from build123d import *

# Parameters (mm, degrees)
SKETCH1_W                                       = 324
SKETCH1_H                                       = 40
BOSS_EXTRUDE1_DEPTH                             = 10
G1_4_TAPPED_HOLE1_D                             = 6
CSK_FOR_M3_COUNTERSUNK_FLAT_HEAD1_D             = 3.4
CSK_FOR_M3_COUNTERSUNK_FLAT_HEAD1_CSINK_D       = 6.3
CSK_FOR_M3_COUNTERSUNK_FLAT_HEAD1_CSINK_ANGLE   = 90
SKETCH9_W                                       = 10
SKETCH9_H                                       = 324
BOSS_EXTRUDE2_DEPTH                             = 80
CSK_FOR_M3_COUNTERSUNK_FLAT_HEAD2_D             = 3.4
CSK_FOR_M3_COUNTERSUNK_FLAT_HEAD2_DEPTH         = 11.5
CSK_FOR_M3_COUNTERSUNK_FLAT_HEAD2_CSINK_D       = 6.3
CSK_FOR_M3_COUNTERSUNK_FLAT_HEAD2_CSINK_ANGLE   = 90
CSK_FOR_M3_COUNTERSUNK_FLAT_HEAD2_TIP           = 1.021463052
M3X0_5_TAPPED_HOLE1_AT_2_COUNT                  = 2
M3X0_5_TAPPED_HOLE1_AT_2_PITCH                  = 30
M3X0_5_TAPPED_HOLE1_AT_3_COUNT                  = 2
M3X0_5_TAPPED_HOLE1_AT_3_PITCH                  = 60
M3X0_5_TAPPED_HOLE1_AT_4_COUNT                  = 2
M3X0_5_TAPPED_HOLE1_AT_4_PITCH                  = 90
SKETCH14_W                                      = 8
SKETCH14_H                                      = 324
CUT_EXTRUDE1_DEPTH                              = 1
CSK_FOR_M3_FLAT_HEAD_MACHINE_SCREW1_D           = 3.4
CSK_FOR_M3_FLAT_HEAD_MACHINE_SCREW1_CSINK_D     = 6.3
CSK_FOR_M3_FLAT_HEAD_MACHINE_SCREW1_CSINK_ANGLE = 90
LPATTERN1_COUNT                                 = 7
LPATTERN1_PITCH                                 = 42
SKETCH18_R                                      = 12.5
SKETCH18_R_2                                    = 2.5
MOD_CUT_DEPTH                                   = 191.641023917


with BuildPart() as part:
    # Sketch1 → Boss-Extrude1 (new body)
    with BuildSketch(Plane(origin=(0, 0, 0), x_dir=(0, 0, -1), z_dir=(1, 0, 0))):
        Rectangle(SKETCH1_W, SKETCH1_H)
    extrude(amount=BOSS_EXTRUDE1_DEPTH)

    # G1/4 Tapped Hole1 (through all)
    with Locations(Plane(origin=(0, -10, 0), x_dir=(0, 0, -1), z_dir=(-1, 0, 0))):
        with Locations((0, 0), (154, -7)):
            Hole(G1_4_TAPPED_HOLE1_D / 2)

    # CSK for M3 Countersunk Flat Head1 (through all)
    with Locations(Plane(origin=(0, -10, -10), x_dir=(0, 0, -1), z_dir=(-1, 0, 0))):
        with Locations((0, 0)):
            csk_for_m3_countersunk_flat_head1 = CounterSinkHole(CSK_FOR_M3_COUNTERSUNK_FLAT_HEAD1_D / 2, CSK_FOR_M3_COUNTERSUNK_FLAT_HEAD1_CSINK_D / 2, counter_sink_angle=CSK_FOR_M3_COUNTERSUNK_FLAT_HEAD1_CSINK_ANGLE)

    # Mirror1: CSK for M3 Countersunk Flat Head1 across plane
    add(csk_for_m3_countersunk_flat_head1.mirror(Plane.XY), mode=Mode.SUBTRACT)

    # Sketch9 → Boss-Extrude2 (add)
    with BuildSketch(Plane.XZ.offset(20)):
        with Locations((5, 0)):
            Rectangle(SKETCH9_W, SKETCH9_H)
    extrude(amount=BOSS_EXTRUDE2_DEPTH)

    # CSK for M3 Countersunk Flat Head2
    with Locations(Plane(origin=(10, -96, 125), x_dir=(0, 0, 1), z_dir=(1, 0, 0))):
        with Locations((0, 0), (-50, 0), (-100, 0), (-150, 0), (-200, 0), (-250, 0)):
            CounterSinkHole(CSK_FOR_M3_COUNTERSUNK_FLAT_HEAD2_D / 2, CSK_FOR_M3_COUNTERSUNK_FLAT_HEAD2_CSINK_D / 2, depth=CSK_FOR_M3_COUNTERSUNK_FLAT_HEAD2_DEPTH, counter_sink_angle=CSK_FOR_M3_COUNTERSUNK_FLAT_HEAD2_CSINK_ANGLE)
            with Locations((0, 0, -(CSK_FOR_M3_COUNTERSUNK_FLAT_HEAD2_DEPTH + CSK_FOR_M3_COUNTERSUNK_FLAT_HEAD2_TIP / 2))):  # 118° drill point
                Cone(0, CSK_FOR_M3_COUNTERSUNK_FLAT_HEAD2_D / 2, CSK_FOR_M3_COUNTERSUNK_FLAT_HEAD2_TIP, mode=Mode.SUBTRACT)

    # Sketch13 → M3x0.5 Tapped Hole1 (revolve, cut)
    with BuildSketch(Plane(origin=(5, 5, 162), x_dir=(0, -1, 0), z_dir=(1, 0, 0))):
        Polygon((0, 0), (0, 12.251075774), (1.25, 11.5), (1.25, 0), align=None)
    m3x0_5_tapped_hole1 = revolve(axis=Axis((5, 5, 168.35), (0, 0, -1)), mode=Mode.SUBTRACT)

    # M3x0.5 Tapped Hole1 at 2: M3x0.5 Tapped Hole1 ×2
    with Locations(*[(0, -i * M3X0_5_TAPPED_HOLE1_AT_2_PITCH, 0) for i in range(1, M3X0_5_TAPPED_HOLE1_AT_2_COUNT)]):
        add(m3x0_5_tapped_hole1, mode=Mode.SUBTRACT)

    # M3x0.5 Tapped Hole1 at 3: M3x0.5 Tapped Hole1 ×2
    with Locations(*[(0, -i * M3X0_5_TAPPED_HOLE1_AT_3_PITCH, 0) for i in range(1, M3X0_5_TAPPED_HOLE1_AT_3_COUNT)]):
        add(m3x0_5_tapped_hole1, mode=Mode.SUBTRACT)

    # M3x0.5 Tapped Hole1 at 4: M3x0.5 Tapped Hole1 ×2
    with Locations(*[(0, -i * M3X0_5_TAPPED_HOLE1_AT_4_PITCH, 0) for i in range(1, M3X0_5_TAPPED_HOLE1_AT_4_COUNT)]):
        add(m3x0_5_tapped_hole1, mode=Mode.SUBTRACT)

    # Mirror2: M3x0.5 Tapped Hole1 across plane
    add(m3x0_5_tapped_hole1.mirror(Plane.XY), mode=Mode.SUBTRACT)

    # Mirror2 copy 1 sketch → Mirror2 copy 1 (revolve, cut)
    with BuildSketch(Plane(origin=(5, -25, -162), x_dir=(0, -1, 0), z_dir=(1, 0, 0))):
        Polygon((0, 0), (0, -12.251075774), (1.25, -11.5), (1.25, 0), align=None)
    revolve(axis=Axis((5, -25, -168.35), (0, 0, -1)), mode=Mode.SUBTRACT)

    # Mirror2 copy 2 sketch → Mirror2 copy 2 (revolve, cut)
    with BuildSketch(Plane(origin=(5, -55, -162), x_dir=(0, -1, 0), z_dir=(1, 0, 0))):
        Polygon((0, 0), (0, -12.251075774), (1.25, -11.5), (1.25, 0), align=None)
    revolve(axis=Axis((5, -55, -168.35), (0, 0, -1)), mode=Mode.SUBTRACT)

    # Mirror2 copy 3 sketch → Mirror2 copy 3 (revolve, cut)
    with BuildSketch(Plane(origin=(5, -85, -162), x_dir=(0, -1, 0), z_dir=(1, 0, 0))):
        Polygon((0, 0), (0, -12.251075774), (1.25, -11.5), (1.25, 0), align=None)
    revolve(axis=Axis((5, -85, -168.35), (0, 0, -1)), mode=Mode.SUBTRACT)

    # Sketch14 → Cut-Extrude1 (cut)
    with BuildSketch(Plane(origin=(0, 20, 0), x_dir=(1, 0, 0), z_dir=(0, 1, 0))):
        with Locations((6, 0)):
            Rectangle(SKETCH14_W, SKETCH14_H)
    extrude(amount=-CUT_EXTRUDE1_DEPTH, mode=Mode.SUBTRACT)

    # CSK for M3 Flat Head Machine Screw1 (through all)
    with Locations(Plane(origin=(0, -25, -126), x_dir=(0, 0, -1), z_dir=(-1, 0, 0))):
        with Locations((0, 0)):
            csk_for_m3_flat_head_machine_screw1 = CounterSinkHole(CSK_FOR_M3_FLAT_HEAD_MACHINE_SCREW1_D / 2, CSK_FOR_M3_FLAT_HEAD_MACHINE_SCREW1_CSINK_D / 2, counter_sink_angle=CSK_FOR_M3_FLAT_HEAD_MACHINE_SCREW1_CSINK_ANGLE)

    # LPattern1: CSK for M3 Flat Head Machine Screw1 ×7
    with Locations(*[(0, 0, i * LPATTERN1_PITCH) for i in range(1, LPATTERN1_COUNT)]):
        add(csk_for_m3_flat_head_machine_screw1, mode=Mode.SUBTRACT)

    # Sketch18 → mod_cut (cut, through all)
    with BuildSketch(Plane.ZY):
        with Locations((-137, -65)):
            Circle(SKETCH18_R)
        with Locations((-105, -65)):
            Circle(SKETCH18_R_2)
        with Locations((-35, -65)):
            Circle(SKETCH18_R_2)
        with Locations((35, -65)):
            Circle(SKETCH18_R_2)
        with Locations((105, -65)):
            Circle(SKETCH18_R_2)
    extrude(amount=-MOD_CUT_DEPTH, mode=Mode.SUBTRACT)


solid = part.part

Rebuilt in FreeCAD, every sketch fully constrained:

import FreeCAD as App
import Part
import Sketcher
from FreeCAD import Vector
Q = App.Units.Quantity

doc = App.newDocument("Part")
body = doc.addObject("PartDesign::Body", "Body")

# Sketch on YZ plane
sketch1 = body.newObject("Sketcher::SketchObject", "Sketch")
sketch1.AttachmentSupport = (doc.getObject("YZ_Plane"), [""])
sketch1.MapMode = "FlatFace"
sketch1.addGeometry(Part.LineSegment(Vector(20, 162, 0), Vector(-20, 162, 0)), False)
sketch1.addGeometry(Part.LineSegment(Vector(-20, 162, 0), Vector(-20, -162, 0)), False)
sketch1.addGeometry(Part.LineSegment(Vector(-20, -162, 0), Vector(20, -162, 0)), False)
sketch1.addGeometry(Part.LineSegment(Vector(20, -162, 0), Vector(20, 162, 0)), False)
sketch1.addConstraint(Sketcher.Constraint("Coincident", 0, 2, 1, 1))
sketch1.addConstraint(Sketcher.Constraint("Coincident", 1, 2, 2, 1))
sketch1.addConstraint(Sketcher.Constraint("Coincident", 2, 2, 3, 1))
sketch1.addConstraint(Sketcher.Constraint("Coincident", 3, 2, 0, 1))
sketch1.addConstraint(Sketcher.Constraint("Horizontal", 0))
sketch1.addConstraint(Sketcher.Constraint("Vertical", 1))
sketch1.addConstraint(Sketcher.Constraint("Horizontal", 2))
sketch1.addConstraint(Sketcher.Constraint("Vertical", 3))
sketch1.addConstraint(Sketcher.Constraint("Symmetric", 0, 2, 2, 2, -1, 1))
sketch1.addConstraint(Sketcher.Constraint("DistanceX", 0, 2, 0, 1, 40.0))
sketch1.addConstraint(Sketcher.Constraint("DistanceY", 1, 2, 1, 1, 324.0))
pad1 = body.newObject("PartDesign::Pad", "Pad")
pad1.Profile = sketch1
pad1.Length = 10

# Sketch on YZ plane
sketch2 = body.newObject("Sketcher::SketchObject", "Sketch001")
sketch2.AttachmentSupport = (doc.getObject("YZ_Plane"), [""])
sketch2.MapMode = "FlatFace"
sketch2.addGeometry(Part.Circle(Vector(-10, 0, 0), Vector(0, 0, 1), 3), False)
sketch2.addGeometry(Part.Circle(Vector(-3, -154, 0), Vector(0, 0, 1), 3), False)
sketch2.addConstraint(Sketcher.Constraint("Equal", 0, 1))
sketch2.addConstraint(Sketcher.Constraint("PointOnObject", 0, 3, -1))
sketch2.addConstraint(Sketcher.Constraint("Diameter", 0, 6.0))
sketch2.addConstraint(Sketcher.Constraint("DistanceX", 0, 3, -1, 1, 10.0))
sketch2.addConstraint(Sketcher.Constraint("DistanceX", 1, 3, -1, 1, 3.0))
sketch2.addConstraint(Sketcher.Constraint("DistanceY", 1, 3, -1, 1, 154.0))
doc.recompute()
hole = body.newObject("PartDesign::Hole", "Hole")
hole.Profile = sketch2
hole.ThreadType = "None"
hole.Diameter = 6
hole.DepthType = "ThroughAll"
hole.Reversed = True

# Sketch on YZ plane
sketch3 = body.newObject("Sketcher::SketchObject", "Sketch002")
sketch3.AttachmentSupport = (doc.getObject("YZ_Plane"), [""])
sketch3.MapMode = "FlatFace"
sketch3.addGeometry(Part.Circle(Vector(-10, -10, 0), Vector(0, 0, 1), 1.7), False)
sketch3.addConstraint(Sketcher.Constraint("Diameter", 0, 3.4))
sketch3.addConstraint(Sketcher.Constraint("DistanceX", 0, 3, -1, 1, 10.0))
sketch3.addConstraint(Sketcher.Constraint("DistanceY", 0, 3, -1, 1, 10.0))
doc.recompute()
hole2 = body.newObject("PartDesign::Hole", "Hole001")
hole2.Profile = sketch3
hole2.ThreadType = "None"
hole2.Diameter = 3.4
hole2.DepthType = "ThroughAll"
hole2.HoleCutType = "Countersink"
hole2.HoleCutDiameter = 6.3
hole2.HoleCutCountersinkAngle = 90
hole2.Reversed = True
doc.recompute()

mirrored = body.newObject("PartDesign::Mirrored", "Mirrored")
mirrored.Originals = [hole2]
mirrored.MirrorPlane = (doc.getObject("XY_Plane"), [""])
body.Tip = mirrored

# Sketch on XZ plane
sketch4 = body.newObject("Sketcher::SketchObject", "Sketch003")
sketch4.AttachmentSupport = (doc.getObject("XZ_Plane"), [""])
sketch4.MapMode = "FlatFace"
sketch4.AttachmentOffset = App.Placement(Vector(0, 0, 20), App.Rotation())
sketch4.addGeometry(Part.LineSegment(Vector(0, 162, 0), Vector(0, -162, 0)), False)
sketch4.addGeometry(Part.LineSegment(Vector(0, -162, 0), Vector(10, -162, 0)), False)
sketch4.addGeometry(Part.LineSegment(Vector(10, -162, 0), Vector(10, 162, 0)), False)
sketch4.addGeometry(Part.LineSegment(Vector(10, 162, 0), Vector(0, 162, 0)), False)
sketch4.addConstraint(Sketcher.Constraint("Coincident", 0, 2, 1, 1))
sketch4.addConstraint(Sketcher.Constraint("Coincident", 1, 2, 2, 1))
sketch4.addConstraint(Sketcher.Constraint("Coincident", 2, 2, 3, 1))
sketch4.addConstraint(Sketcher.Constraint("Coincident", 3, 2, 0, 1))
sketch4.addConstraint(Sketcher.Constraint("Vertical", 0))
sketch4.addConstraint(Sketcher.Constraint("Horizontal", 1))
sketch4.addConstraint(Sketcher.Constraint("Vertical", 2))
sketch4.addConstraint(Sketcher.Constraint("Horizontal", 3))
sketch4.addConstraint(Sketcher.Constraint("Symmetric", 0, 2, 3, 2, -1, 1))
sketch4.addConstraint(Sketcher.Constraint("DistanceX", 1, 1, 1, 2, 10.0))
sketch4.addConstraint(Sketcher.Constraint("DistanceY", 0, 2, 0, 1, 324.0))
pad2 = body.newObject("PartDesign::Pad", "Pad001")
pad2.Profile = sketch4
pad2.Length = 80

# Sketch on YZ plane
sketch5 = body.newObject("Sketcher::SketchObject", "Sketch004")
sketch5.AttachmentSupport = (doc.getObject("YZ_Plane"), [""])
sketch5.MapMode = "FlatFace"
sketch5.AttachmentOffset = App.Placement(Vector(0, 0, 10), App.Rotation())
sketch5.addGeometry(Part.Circle(Vector(-96, 125, 0), Vector(0, 0, 1), 1.7), False)
sketch5.addGeometry(Part.Circle(Vector(-96, 75, 0), Vector(0, 0, 1), 1.7), False)
sketch5.addGeometry(Part.Circle(Vector(-96, 25, 0), Vector(0, 0, 1), 1.7), False)
sketch5.addGeometry(Part.Circle(Vector(-96, -25, 0), Vector(0, 0, 1), 1.7), False)
sketch5.addGeometry(Part.Circle(Vector(-96, -75, 0), Vector(0, 0, 1), 1.7), False)
sketch5.addGeometry(Part.Circle(Vector(-96, -125, 0), Vector(0, 0, 1), 1.7), False)
sketch5.addConstraint(Sketcher.Constraint("Equal", 0, 1))
sketch5.addConstraint(Sketcher.Constraint("Equal", 1, 2))
sketch5.addConstraint(Sketcher.Constraint("Equal", 2, 3))
sketch5.addConstraint(Sketcher.Constraint("Equal", 3, 4))
sketch5.addConstraint(Sketcher.Constraint("Equal", 4, 5))
sketch5.addConstraint(Sketcher.Constraint("Symmetric", 2, 3, 3, 3, -1))
sketch5.addConstraint(Sketcher.Constraint("Symmetric", 1, 3, 4, 3, -1))
sketch5.addConstraint(Sketcher.Constraint("Symmetric", 0, 3, 5, 3, -1))
sketch5.addConstraint(Sketcher.Constraint("Vertical", 0, 3, 1, 3))
sketch5.addConstraint(Sketcher.Constraint("Vertical", 1, 3, 2, 3))
sketch5.addConstraint(Sketcher.Constraint("Diameter", 0, 3.4))
sketch5.addConstraint(Sketcher.Constraint("DistanceX", 0, 3, -1, 1, 96.0))
sketch5.addConstraint(Sketcher.Constraint("DistanceY", -1, 1, 0, 3, 125.0))
sketch5.addConstraint(Sketcher.Constraint("DistanceY", -1, 1, 1, 3, 75.0))
sketch5.addConstraint(Sketcher.Constraint("DistanceY", -1, 1, 2, 3, 25.0))
doc.recompute()
hole3 = body.newObject("PartDesign::Hole", "Hole002")
hole3.Profile = sketch5
hole3.ThreadType = "None"
hole3.Diameter = 3.4
hole3.DepthType = "Dimension"
hole3.Depth = 11.5
hole3.DrillPoint = "Angled"
hole3.DrillPointAngle = 118
hole3.HoleCutType = "Countersink"
hole3.HoleCutDiameter = 6.3
hole3.HoleCutCountersinkAngle = 90

# Sketch on YZ plane
sketch6 = body.newObject("Sketcher::SketchObject", "Sketch005")
sketch6.AttachmentSupport = (doc.getObject("YZ_Plane"), [""])
sketch6.MapMode = "FlatFace"
sketch6.AttachmentOffset = App.Placement(Vector(0, 0, 5), App.Rotation())
sketch6.addGeometry(Part.LineSegment(Vector(5, 149.7, 0), Vector(5, 162, 0)), False)
sketch6.addGeometry(Part.LineSegment(Vector(5, 162, 0), Vector(3.8, 162, 0)), False)
sketch6.addGeometry(Part.LineSegment(Vector(3.8, 162, 0), Vector(3.8, 150.5, 0)), False)
sketch6.addGeometry(Part.LineSegment(Vector(3.8, 150.5, 0), Vector(5, 149.7, 0)), False)
sketch6.addGeometry(Part.LineSegment(Vector(5, 162, 0), Vector(5, 149.7, 0)), True)  # axis
sketch6.addConstraint(Sketcher.Constraint("Coincident", 0, 2, 1, 1))
sketch6.addConstraint(Sketcher.Constraint("Coincident", 1, 2, 2, 1))
sketch6.addConstraint(Sketcher.Constraint("Coincident", 2, 2, 3, 1))
sketch6.addConstraint(Sketcher.Constraint("Coincident", 3, 2, 0, 1))
sketch6.addConstraint(Sketcher.Constraint("Vertical", 0))
sketch6.addConstraint(Sketcher.Constraint("Horizontal", 1))
sketch6.addConstraint(Sketcher.Constraint("Vertical", 2))
sketch6.addConstraint(Sketcher.Constraint("Vertical", 4))
sketch6.addConstraint(Sketcher.Constraint("Coincident", 4, 1, 0, 2))
sketch6.addConstraint(Sketcher.Constraint("Equal", 0, 4))
sketch6.addConstraint(Sketcher.Constraint("Angle", 3, Q("-31 deg")))
sketch6.addConstraint(Sketcher.Constraint("DistanceY", 2, 2, 2, 1, 11.5))
sketch6.addConstraint(Sketcher.Constraint("DistanceX", -1, 1, 0, 2, 5.0))
sketch6.addConstraint(Sketcher.Constraint("DistanceY", -1, 1, 0, 2, 162.0))
sketch6.addConstraint(Sketcher.Constraint("DistanceX", 1, 2, 1, 1, 1.25))
groove = body.newObject("PartDesign::Groove", "Groove")
groove.Profile = sketch6
groove.ReferenceAxis = (sketch6, ["Axis0"])
groove.Angle = 360
doc.recompute()

linearpattern = body.newObject("PartDesign::LinearPattern", "LinearPattern")
linearpattern.Originals = [groove]
linearpattern.Direction = (doc.getObject("Y_Axis"), [""])
linearpattern.Mode = "offset"
linearpattern.Offset = 30
linearpattern.Occurrences = 2
linearpattern.Reversed = True
body.Tip = linearpattern
doc.recompute()

linearpattern2 = body.newObject("PartDesign::LinearPattern", "LinearPattern001")
linearpattern2.Originals = [groove]
linearpattern2.Direction = (doc.getObject("Y_Axis"), [""])
linearpattern2.Mode = "offset"
linearpattern2.Offset = 60
linearpattern2.Occurrences = 2
linearpattern2.Reversed = True
body.Tip = linearpattern2
doc.recompute()

linearpattern3 = body.newObject("PartDesign::LinearPattern", "LinearPattern002")
linearpattern3.Originals = [groove]
linearpattern3.Direction = (doc.getObject("Y_Axis"), [""])
linearpattern3.Mode = "offset"
linearpattern3.Offset = 90
linearpattern3.Occurrences = 2
linearpattern3.Reversed = True
body.Tip = linearpattern3
doc.recompute()

mirrored2 = body.newObject("PartDesign::Mirrored", "Mirrored001")
mirrored2.Originals = [groove]
mirrored2.MirrorPlane = (doc.getObject("XY_Plane"), [""])
body.Tip = mirrored2

# Sketch on YZ plane
sketch7 = body.newObject("Sketcher::SketchObject", "Sketch006")
sketch7.AttachmentSupport = (doc.getObject("YZ_Plane"), [""])
sketch7.MapMode = "FlatFace"
sketch7.AttachmentOffset = App.Placement(Vector(0, 0, 5), App.Rotation())
sketch7.addGeometry(Part.LineSegment(Vector(-25, -162, 0), Vector(-25, -149.7, 0)), False)
sketch7.addGeometry(Part.LineSegment(Vector(-25, -149.7, 0), Vector(-26.2, -150.5, 0)), False)
sketch7.addGeometry(Part.LineSegment(Vector(-26.2, -150.5, 0), Vector(-26.2, -162, 0)), False)
sketch7.addGeometry(Part.LineSegment(Vector(-26.2, -162, 0), Vector(-25, -162, 0)), False)
sketch7.addGeometry(Part.LineSegment(Vector(-25, -149.7, 0), Vector(-25, -162, 0)), True)  # axis
sketch7.addConstraint(Sketcher.Constraint("Coincident", 0, 2, 1, 1))
sketch7.addConstraint(Sketcher.Constraint("Coincident", 1, 2, 2, 1))
sketch7.addConstraint(Sketcher.Constraint("Coincident", 2, 2, 3, 1))
sketch7.addConstraint(Sketcher.Constraint("Coincident", 3, 2, 0, 1))
sketch7.addConstraint(Sketcher.Constraint("Vertical", 0))
sketch7.addConstraint(Sketcher.Constraint("Vertical", 2))
sketch7.addConstraint(Sketcher.Constraint("Horizontal", 3))
sketch7.addConstraint(Sketcher.Constraint("Vertical", 4))
sketch7.addConstraint(Sketcher.Constraint("Coincident", 4, 1, 0, 2))
sketch7.addConstraint(Sketcher.Constraint("Horizontal", 2, 2, 4, 2))
sketch7.addConstraint(Sketcher.Constraint("Angle", 1, Q("-149 deg")))
sketch7.addConstraint(Sketcher.Constraint("DistanceY", 2, 2, 2, 1, 11.5))
sketch7.addConstraint(Sketcher.Constraint("DistanceX", 0, 2, -1, 1, 25.0))
sketch7.addConstraint(Sketcher.Constraint("DistanceY", 2, 2, -1, 1, 162.0))
sketch7.addConstraint(Sketcher.Constraint("DistanceX", 3, 1, 3, 2, 1.25))
groove2 = body.newObject("PartDesign::Groove", "Groove001")
groove2.Profile = sketch7
groove2.ReferenceAxis = (sketch7, ["Axis0"])
groove2.Angle = 360

# Sketch on YZ plane
sketch8 = body.newObject("Sketcher::SketchObject", "Sketch007")
sketch8.AttachmentSupport = (doc.getObject("YZ_Plane"), [""])
sketch8.MapMode = "FlatFace"
sketch8.AttachmentOffset = App.Placement(Vector(0, 0, 5), App.Rotation())
sketch8.addGeometry(Part.LineSegment(Vector(-55, -162, 0), Vector(-55, -149.7, 0)), False)
sketch8.addGeometry(Part.LineSegment(Vector(-55, -149.7, 0), Vector(-56.2, -150.5, 0)), False)
sketch8.addGeometry(Part.LineSegment(Vector(-56.2, -150.5, 0), Vector(-56.2, -162, 0)), False)
sketch8.addGeometry(Part.LineSegment(Vector(-56.2, -162, 0), Vector(-55, -162, 0)), False)
sketch8.addGeometry(Part.LineSegment(Vector(-55, -149.7, 0), Vector(-55, -162, 0)), True)  # axis
sketch8.addConstraint(Sketcher.Constraint("Coincident", 0, 2, 1, 1))
sketch8.addConstraint(Sketcher.Constraint("Coincident", 1, 2, 2, 1))
sketch8.addConstraint(Sketcher.Constraint("Coincident", 2, 2, 3, 1))
sketch8.addConstraint(Sketcher.Constraint("Coincident", 3, 2, 0, 1))
sketch8.addConstraint(Sketcher.Constraint("Vertical", 0))
sketch8.addConstraint(Sketcher.Constraint("Vertical", 2))
sketch8.addConstraint(Sketcher.Constraint("Horizontal", 3))
sketch8.addConstraint(Sketcher.Constraint("Vertical", 4))
sketch8.addConstraint(Sketcher.Constraint("Coincident", 4, 1, 0, 2))
sketch8.addConstraint(Sketcher.Constraint("Horizontal", 2, 2, 4, 2))
sketch8.addConstraint(Sketcher.Constraint("Angle", 1, Q("-149 deg")))
sketch8.addConstraint(Sketcher.Constraint("DistanceY", 2, 2, 2, 1, 11.5))
sketch8.addConstraint(Sketcher.Constraint("DistanceX", 0, 2, -1, 1, 55.0))
sketch8.addConstraint(Sketcher.Constraint("DistanceY", 2, 2, -1, 1, 162.0))
sketch8.addConstraint(Sketcher.Constraint("DistanceX", 3, 1, 3, 2, 1.25))
groove3 = body.newObject("PartDesign::Groove", "Groove002")
groove3.Profile = sketch8
groove3.ReferenceAxis = (sketch8, ["Axis0"])
groove3.Angle = 360

# Sketch on YZ plane
sketch9 = body.newObject("Sketcher::SketchObject", "Sketch008")
sketch9.AttachmentSupport = (doc.getObject("YZ_Plane"), [""])
sketch9.MapMode = "FlatFace"
sketch9.AttachmentOffset = App.Placement(Vector(0, 0, 5), App.Rotation())
sketch9.addGeometry(Part.LineSegment(Vector(-85, -162, 0), Vector(-85, -149.7, 0)), False)
sketch9.addGeometry(Part.LineSegment(Vector(-85, -149.7, 0), Vector(-86.2, -150.5, 0)), False)
sketch9.addGeometry(Part.LineSegment(Vector(-86.2, -150.5, 0), Vector(-86.2, -162, 0)), False)
sketch9.addGeometry(Part.LineSegment(Vector(-86.2, -162, 0), Vector(-85, -162, 0)), False)
sketch9.addGeometry(Part.LineSegment(Vector(-85, -149.7, 0), Vector(-85, -162, 0)), True)  # axis
sketch9.addConstraint(Sketcher.Constraint("Coincident", 0, 2, 1, 1))
sketch9.addConstraint(Sketcher.Constraint("Coincident", 1, 2, 2, 1))
sketch9.addConstraint(Sketcher.Constraint("Coincident", 2, 2, 3, 1))
sketch9.addConstraint(Sketcher.Constraint("Coincident", 3, 2, 0, 1))
sketch9.addConstraint(Sketcher.Constraint("Vertical", 0))
sketch9.addConstraint(Sketcher.Constraint("Vertical", 2))
sketch9.addConstraint(Sketcher.Constraint("Horizontal", 3))
sketch9.addConstraint(Sketcher.Constraint("Vertical", 4))
sketch9.addConstraint(Sketcher.Constraint("Coincident", 4, 1, 0, 2))
sketch9.addConstraint(Sketcher.Constraint("Horizontal", 2, 2, 4, 2))
sketch9.addConstraint(Sketcher.Constraint("Angle", 1, Q("-149 deg")))
sketch9.addConstraint(Sketcher.Constraint("DistanceY", 2, 2, 2, 1, 11.5))
sketch9.addConstraint(Sketcher.Constraint("DistanceX", 0, 2, -1, 1, 85.0))
sketch9.addConstraint(Sketcher.Constraint("DistanceY", 2, 2, -1, 1, 162.0))
sketch9.addConstraint(Sketcher.Constraint("DistanceX", 3, 1, 3, 2, 1.25))
groove4 = body.newObject("PartDesign::Groove", "Groove003")
groove4.Profile = sketch9
groove4.ReferenceAxis = (sketch9, ["Axis0"])
groove4.Angle = 360

# Sketch on XZ plane
sketch10 = body.newObject("Sketcher::SketchObject", "Sketch009")
sketch10.AttachmentSupport = (doc.getObject("XZ_Plane"), [""])
sketch10.MapMode = "FlatFace"
sketch10.AttachmentOffset = App.Placement(Vector(0, 0, -20), App.Rotation())
sketch10.addGeometry(Part.LineSegment(Vector(2, -162, 0), Vector(2, 162, 0)), False)
sketch10.addGeometry(Part.LineSegment(Vector(2, 162, 0), Vector(10, 162, 0)), False)
sketch10.addGeometry(Part.LineSegment(Vector(10, 162, 0), Vector(10, -162, 0)), False)
sketch10.addGeometry(Part.LineSegment(Vector(10, -162, 0), Vector(2, -162, 0)), False)
sketch10.addConstraint(Sketcher.Constraint("Coincident", 0, 2, 1, 1))
sketch10.addConstraint(Sketcher.Constraint("Coincident", 1, 2, 2, 1))
sketch10.addConstraint(Sketcher.Constraint("Coincident", 2, 2, 3, 1))
sketch10.addConstraint(Sketcher.Constraint("Coincident", 3, 2, 0, 1))
sketch10.addConstraint(Sketcher.Constraint("Vertical", 0))
sketch10.addConstraint(Sketcher.Constraint("Horizontal", 1))
sketch10.addConstraint(Sketcher.Constraint("Vertical", 2))
sketch10.addConstraint(Sketcher.Constraint("Horizontal", 3))
sketch10.addConstraint(Sketcher.Constraint("DistanceX", 1, 1, 1, 2, 8.0))
sketch10.addConstraint(Sketcher.Constraint("DistanceY", 0, 1, 0, 2, 324.0))
sketch10.addConstraint(Sketcher.Constraint("DistanceX", -1, 1, 0, 2, 2.0))
sketch10.addConstraint(Sketcher.Constraint("DistanceY", -1, 1, 0, 2, 162.0))
pocket1 = body.newObject("PartDesign::Pocket", "Pocket")
pocket1.Profile = sketch10
pocket1.Length = 1
pocket1.Reversed = True

# Sketch on YZ plane
sketch11 = body.newObject("Sketcher::SketchObject", "Sketch010")
sketch11.AttachmentSupport = (doc.getObject("YZ_Plane"), [""])
sketch11.MapMode = "FlatFace"
sketch11.addGeometry(Part.Circle(Vector(-25, -126, 0), Vector(0, 0, 1), 1.7), False)
sketch11.addConstraint(Sketcher.Constraint("Diameter", 0, 3.4))
sketch11.addConstraint(Sketcher.Constraint("DistanceX", 0, 3, -1, 1, 25.0))
sketch11.addConstraint(Sketcher.Constraint("DistanceY", 0, 3, -1, 1, 126.0))
doc.recompute()
hole4 = body.newObject("PartDesign::Hole", "Hole003")
hole4.Profile = sketch11
hole4.ThreadType = "None"
hole4.Diameter = 3.4
hole4.DepthType = "ThroughAll"
hole4.HoleCutType = "Countersink"
hole4.HoleCutDiameter = 6.3
hole4.HoleCutCountersinkAngle = 90
hole4.Reversed = True
doc.recompute()

linearpattern4 = body.newObject("PartDesign::LinearPattern", "LinearPattern003")
linearpattern4.Originals = [hole4]
linearpattern4.Direction = (doc.getObject("Z_Axis"), [""])
linearpattern4.Mode = "offset"
linearpattern4.Offset = 42
linearpattern4.Occurrences = 7
body.Tip = linearpattern4

# Sketch on YZ plane
sketch12 = body.newObject("Sketcher::SketchObject", "Sketch011")
sketch12.AttachmentSupport = (doc.getObject("YZ_Plane"), [""])
sketch12.MapMode = "FlatFace"
sketch12.addGeometry(Part.Circle(Vector(-65, -137, 0), Vector(0, 0, 1), 12.5), False)
sketch12.addGeometry(Part.Circle(Vector(-65, -105, 0), Vector(0, 0, 1), 2.5), False)
sketch12.addGeometry(Part.Circle(Vector(-65, -35, 0), Vector(0, 0, 1), 2.5), False)
sketch12.addGeometry(Part.Circle(Vector(-65, 35, 0), Vector(0, 0, 1), 2.5), False)
sketch12.addGeometry(Part.Circle(Vector(-65, 105, 0), Vector(0, 0, 1), 2.5), False)
sketch12.addConstraint(Sketcher.Constraint("Equal", 1, 2))
sketch12.addConstraint(Sketcher.Constraint("Equal", 2, 3))
sketch12.addConstraint(Sketcher.Constraint("Equal", 3, 4))
sketch12.addConstraint(Sketcher.Constraint("Symmetric", 2, 3, 3, 3, -1))
sketch12.addConstraint(Sketcher.Constraint("Symmetric", 1, 3, 4, 3, -1))
sketch12.addConstraint(Sketcher.Constraint("Vertical", 0, 3, 1, 3))
sketch12.addConstraint(Sketcher.Constraint("Vertical", 1, 3, 2, 3))
sketch12.addConstraint(Sketcher.Constraint("Diameter", 0, 25.0))
sketch12.addConstraint(Sketcher.Constraint("Diameter", 1, 5.0))
sketch12.addConstraint(Sketcher.Constraint("DistanceX", 0, 3, -1, 1, 65.0))
sketch12.addConstraint(Sketcher.Constraint("DistanceY", 0, 3, -1, 1, 137.0))
sketch12.addConstraint(Sketcher.Constraint("DistanceY", 1, 3, -1, 1, 105.0))
sketch12.addConstraint(Sketcher.Constraint("DistanceY", 2, 3, -1, 1, 35.0))
pocket2 = body.newObject("PartDesign::Pocket", "Pocket001")
pocket2.Profile = sketch12
pocket2.Type = "ThroughAll"
pocket2.Reversed = True

doc.recompute()
